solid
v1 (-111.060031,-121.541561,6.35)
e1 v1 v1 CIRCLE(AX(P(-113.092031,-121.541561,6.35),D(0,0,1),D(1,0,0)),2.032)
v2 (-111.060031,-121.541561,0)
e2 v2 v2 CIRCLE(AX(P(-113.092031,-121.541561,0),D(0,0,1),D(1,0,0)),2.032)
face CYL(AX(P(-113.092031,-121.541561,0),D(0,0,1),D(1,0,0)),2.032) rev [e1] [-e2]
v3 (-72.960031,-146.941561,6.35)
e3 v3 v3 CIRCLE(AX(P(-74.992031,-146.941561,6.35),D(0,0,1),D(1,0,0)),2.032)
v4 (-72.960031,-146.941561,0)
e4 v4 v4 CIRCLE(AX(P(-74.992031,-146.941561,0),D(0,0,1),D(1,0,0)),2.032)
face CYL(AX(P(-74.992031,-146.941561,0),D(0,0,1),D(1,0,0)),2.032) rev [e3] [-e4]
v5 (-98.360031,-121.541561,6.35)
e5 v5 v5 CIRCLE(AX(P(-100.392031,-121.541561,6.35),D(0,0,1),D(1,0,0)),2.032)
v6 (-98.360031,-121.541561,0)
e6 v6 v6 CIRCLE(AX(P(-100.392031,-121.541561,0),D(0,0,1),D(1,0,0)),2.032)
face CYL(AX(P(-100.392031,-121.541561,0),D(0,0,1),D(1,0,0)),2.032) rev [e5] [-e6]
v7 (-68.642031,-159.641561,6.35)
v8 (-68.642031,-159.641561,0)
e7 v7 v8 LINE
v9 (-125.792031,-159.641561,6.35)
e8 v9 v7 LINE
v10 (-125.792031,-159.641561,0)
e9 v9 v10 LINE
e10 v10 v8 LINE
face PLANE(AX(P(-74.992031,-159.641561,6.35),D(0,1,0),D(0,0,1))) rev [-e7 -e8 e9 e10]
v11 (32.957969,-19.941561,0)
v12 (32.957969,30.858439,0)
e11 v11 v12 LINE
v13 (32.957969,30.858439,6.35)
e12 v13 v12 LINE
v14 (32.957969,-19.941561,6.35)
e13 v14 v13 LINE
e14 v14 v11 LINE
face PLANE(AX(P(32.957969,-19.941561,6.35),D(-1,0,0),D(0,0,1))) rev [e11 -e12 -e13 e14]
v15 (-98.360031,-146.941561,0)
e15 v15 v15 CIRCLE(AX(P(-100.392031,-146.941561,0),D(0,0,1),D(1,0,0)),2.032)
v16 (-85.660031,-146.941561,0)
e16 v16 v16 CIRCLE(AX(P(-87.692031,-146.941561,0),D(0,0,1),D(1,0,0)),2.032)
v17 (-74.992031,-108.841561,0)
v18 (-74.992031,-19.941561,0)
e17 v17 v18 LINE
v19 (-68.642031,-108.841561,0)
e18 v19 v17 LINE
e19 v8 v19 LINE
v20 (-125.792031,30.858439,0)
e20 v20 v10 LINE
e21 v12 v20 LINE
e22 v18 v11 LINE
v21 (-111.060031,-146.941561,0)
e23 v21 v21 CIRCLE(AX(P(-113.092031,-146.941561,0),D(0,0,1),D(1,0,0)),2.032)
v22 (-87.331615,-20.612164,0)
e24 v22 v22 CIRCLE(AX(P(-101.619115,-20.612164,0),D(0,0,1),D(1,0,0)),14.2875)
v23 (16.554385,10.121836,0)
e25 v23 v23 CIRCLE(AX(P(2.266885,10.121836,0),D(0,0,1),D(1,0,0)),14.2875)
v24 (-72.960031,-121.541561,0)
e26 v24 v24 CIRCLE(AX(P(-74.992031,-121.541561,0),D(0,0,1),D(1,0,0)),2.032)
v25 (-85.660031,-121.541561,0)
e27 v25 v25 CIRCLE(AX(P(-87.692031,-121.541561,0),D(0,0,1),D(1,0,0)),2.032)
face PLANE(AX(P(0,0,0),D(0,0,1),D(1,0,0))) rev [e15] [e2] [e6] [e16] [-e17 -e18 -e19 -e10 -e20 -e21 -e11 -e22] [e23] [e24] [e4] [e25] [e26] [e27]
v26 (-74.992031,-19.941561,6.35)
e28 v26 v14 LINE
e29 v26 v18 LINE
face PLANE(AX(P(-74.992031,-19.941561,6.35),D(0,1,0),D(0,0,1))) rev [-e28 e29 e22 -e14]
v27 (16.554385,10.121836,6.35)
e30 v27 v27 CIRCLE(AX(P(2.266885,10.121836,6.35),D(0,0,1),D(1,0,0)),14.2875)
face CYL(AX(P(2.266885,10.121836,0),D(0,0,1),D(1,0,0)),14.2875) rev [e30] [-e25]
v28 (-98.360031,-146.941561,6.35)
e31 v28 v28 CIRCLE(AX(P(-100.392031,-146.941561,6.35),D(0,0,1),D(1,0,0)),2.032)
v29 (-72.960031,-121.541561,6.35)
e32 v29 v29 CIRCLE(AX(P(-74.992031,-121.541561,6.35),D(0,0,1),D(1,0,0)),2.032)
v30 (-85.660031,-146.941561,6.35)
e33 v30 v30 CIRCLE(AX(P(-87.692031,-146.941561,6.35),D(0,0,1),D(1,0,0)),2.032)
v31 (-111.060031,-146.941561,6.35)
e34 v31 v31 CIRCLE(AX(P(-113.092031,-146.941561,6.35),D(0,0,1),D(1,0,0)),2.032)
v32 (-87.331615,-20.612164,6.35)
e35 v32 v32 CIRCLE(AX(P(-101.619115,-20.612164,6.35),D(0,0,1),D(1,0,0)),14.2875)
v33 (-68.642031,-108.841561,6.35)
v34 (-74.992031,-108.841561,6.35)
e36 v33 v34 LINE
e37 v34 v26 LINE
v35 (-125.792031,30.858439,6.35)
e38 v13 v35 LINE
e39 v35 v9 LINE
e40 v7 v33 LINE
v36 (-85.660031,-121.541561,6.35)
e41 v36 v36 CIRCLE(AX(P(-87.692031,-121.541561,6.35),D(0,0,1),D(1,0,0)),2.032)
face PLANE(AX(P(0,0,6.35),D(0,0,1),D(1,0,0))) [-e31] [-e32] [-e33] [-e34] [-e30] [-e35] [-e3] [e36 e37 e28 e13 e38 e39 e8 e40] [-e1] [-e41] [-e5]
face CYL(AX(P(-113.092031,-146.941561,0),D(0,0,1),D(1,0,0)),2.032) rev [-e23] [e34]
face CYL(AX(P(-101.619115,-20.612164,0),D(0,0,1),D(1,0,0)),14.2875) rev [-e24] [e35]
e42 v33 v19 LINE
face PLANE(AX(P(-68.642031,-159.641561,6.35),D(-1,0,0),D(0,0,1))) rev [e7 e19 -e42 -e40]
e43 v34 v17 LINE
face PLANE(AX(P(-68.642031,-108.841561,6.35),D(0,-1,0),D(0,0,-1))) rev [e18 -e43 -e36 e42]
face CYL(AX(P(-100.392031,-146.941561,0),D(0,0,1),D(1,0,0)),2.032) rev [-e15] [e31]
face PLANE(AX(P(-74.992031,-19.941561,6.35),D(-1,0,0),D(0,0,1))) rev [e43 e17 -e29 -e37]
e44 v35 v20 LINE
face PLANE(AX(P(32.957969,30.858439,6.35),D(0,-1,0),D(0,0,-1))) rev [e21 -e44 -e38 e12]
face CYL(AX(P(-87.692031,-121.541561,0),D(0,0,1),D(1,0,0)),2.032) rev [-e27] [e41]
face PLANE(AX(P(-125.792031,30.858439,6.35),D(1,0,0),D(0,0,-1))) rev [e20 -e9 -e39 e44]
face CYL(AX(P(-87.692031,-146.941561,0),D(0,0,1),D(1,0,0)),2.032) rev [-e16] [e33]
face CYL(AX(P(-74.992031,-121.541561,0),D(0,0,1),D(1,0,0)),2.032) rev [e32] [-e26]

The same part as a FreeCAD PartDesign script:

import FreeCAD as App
import Part
import Sketcher
from FreeCAD import Vector
Q = App.Units.Quantity

doc = App.newDocument("Part")
params = doc.addObject("Spreadsheet::Sheet", "Params")
for row, (alias, value) in enumerate([
    ("sketch1_height", "2 in"),
    ("sketch1_height2", "3.5 in"),
    ("sketch1_width", "2.25 in"),
    ("pad1_length", "0.25 in"),
    ("sketch2_diameter", "0.16 in"),
    ("sketch2_diameter2", "1.125 in"),
    ("pocket1_length", "0.25 in"),
], start=1):
    params.set(f"A{row}", alias)
    params.set(f"B{row}", "=" + value)
    params.setAlias(f"B{row}", alias)

body = doc.addObject("PartDesign::Body", "Body")

# Sketch on XY plane
sketch1 = doc.addObject("Sketcher::SketchObject", "Sketch")
body.addObject(sketch1)
sketch1.AttachmentSupport = (doc.XY_Plane, [""])
sketch1.MapMode = "FlatFace"
sketch1.addGeometry(Part.LineSegment(Vector(-125.792031, -159.641561, 0), Vector(-68.642031, -159.641561, 0)), False)
sketch1.addGeometry(Part.LineSegment(Vector(-68.642031, -159.641561, 0), Vector(-68.642031, -108.841561, 0)), False)
sketch1.addGeometry(Part.LineSegment(Vector(-68.642031, -108.841561, 0), Vector(-74.992031, -108.841561, 0)), False)
sketch1.addGeometry(Part.LineSegment(Vector(-74.992031, -108.841561, 0), Vector(-74.992031, -19.941561, 0)), False)
sketch1.addGeometry(Part.LineSegment(Vector(-74.992031, -19.941561, 0), Vector(32.957969, -19.941561, 0)), False)
sketch1.addGeometry(Part.LineSegment(Vector(32.957969, -19.941561, 0), Vector(32.957969, 30.858439, 0)), False)
sketch1.addGeometry(Part.LineSegment(Vector(32.957969, 30.858439, 0), Vector(-125.792031, 30.858439, 0)), False)
sketch1.addGeometry(Part.LineSegment(Vector(-125.792031, 30.858439, 0), Vector(-125.792031, -159.641561, 0)), False)
sketch1.addConstraint(Sketcher.Constraint("Coincident", 0, 2, 1, 1))
sketch1.addConstraint(Sketcher.Constraint("Coincident", 1, 2, 2, 1))
sketch1.addConstraint(Sketcher.Constraint("Coincident", 2, 2, 3, 1))
sketch1.addConstraint(Sketcher.Constraint("Coincident", 3, 2, 4, 1))
sketch1.addConstraint(Sketcher.Constraint("Coincident", 4, 2, 5, 1))
sketch1.addConstraint(Sketcher.Constraint("Coincident", 5, 2, 6, 1))
sketch1.addConstraint(Sketcher.Constraint("Coincident", 6, 2, 7, 1))
sketch1.addConstraint(Sketcher.Constraint("Coincident", 7, 2, 0, 1))
sketch1.addConstraint(Sketcher.Constraint("Horizontal", 0))
sketch1.addConstraint(Sketcher.Constraint("Vertical", 1))
sketch1.addConstraint(Sketcher.Constraint("Horizontal", 2))
sketch1.addConstraint(Sketcher.Constraint("Vertical", 3))
sketch1.addConstraint(Sketcher.Constraint("Horizontal", 4))
sketch1.addConstraint(Sketcher.Constraint("Vertical", 5))
sketch1.addConstraint(Sketcher.Constraint("Horizontal", 6))
sketch1.addConstraint(Sketcher.Constraint("Vertical", 7))
sketch1.addConstraint(Sketcher.Constraint("Equal", 1, 5))
sketch1.addConstraint(Sketcher.Constraint("DistanceY", 1, 1, 1, 2, Q("2 in")))
sketch1.addConstraint(Sketcher.Constraint("DistanceY", 3, 1, 3, 2, Q("3.5 in")))
sketch1.addConstraint(Sketcher.Constraint("DistanceX", 1, 2, 4, 2, Q("4 in")))
sketch1.addConstraint(Sketcher.Constraint("DistanceX", 6, 2, 3, 2, Q("2 in")))
sketch1.addConstraint(Sketcher.Constraint("DistanceX", 0, 1, 0, 2, Q("2.25 in")))
sketch1.addConstraint(Sketcher.Constraint("DistanceX", 0, 2, -1, 1, Q("68.642031 mm")))
sketch1.addConstraint(Sketcher.Constraint("DistanceY", 0, 2, -1, 1, Q("159.641561 mm")))
sketch1.setExpression("Constraints[17]", "Params.sketch1_height")
sketch1.setExpression("Constraints[18]", "Params.sketch1_height2")
sketch1.setExpression("Constraints[21]", "Params.sketch1_width")
pad1 = doc.addObject("PartDesign::Pad", "Pad")
body.addObject(pad1)
pad1.Profile = sketch1
pad1.setExpression("Length", "Params.pad1_length")

# Sketch on XY plane
sketch2 = doc.addObject("Sketcher::SketchObject", "Sketch001")
body.addObject(sketch2)
sketch2.AttachmentSupport = (doc.XY_Plane, [""])
sketch2.MapMode = "FlatFace"
sketch2.AttachmentOffset = App.Placement(Vector(0, 0, 0.25 * 25.4), App.Rotation())
sketch2.addGeometry(Part.Circle(Vector(-101.619115, -20.612164, 0), Vector(0, 0, 1), 14.2875), False)
sketch2.addGeometry(Part.Circle(Vector(2.266885, 10.121836, 0), Vector(0, 0, 1), 14.2875), False)
sketch2.addGeometry(Part.Circle(Vector(-87.692031, -146.941561, 0), Vector(0, 0, 1), 2.032), False)
sketch2.addGeometry(Part.Circle(Vector(-113.092031, -146.941561, 0), Vector(0, 0, 1), 2.032), False)
sketch2.addGeometry(Part.Circle(Vector(-100.392031, -146.941561, 0), Vector(0, 0, 1), 2.032), False)
sketch2.addGeometry(Part.Circle(Vector(-74.992031, -146.941561, 0), Vector(0, 0, 1), 2.032), False)
sketch2.addGeometry(Part.Circle(Vector(-113.092031, -121.541561, 0), Vector(0, 0, 1), 2.032), False)
sketch2.addGeometry(Part.Circle(Vector(-87.692031, -121.541561, 0), Vector(0, 0, 1), 2.032), False)
sketch2.addGeometry(Part.Circle(Vector(-74.992031, -121.541561, 0), Vector(0, 0, 1), 2.032), False)
sketch2.addGeometry(Part.Circle(Vector(-100.392031, -121.541561, 0), Vector(0, 0, 1), 2.032), False)
sketch2.addConstraint(Sketcher.Constraint("Equal", 0, 1))
sketch2.addConstraint(Sketcher.Constraint("Equal", 2, 3))
sketch2.addConstraint(Sketcher.Constraint("Equal", 3, 4))
sketch2.addConstraint(Sketcher.Constraint("Equal", 4, 5))
sketch2.addConstraint(Sketcher.Constraint("Equal", 5, 6))
sketch2.addConstraint(Sketcher.Constraint("Equal", 6, 7))
sketch2.addConstraint(Sketcher.Constraint("Equal", 7, 8))
sketch2.addConstraint(Sketcher.Constraint("Equal", 8, 9))
sketch2.addConstraint(Sketcher.Constraint("Horizontal", 2, 3, 3, 3))
sketch2.addConstraint(Sketcher.Constraint("Horizontal", 3, 3, 4, 3))
sketch2.addConstraint(Sketcher.Constraint("Horizontal", 4, 3, 5, 3))
sketch2.addConstraint(Sketcher.Constraint("Horizontal", 6, 3, 7, 3))
sketch2.addConstraint(Sketcher.Constraint("Horizontal", 7, 3, 8, 3))
sketch2.addConstraint(Sketcher.Constraint("Horizontal", 8, 3, 9, 3))
sketch2.addConstraint(Sketcher.Constraint("Vertical", 3, 3, 6, 3))
sketch2.addConstraint(Sketcher.Constraint("Vertical", 2, 3, 7, 3))
sketch2.addConstraint(Sketcher.Constraint("Vertical", 5, 3, 8, 3))
sketch2.addConstraint(Sketcher.Constraint("Vertical", 4, 3, 9, 3))
sketch2.addConstraint(Sketcher.Constraint("Diameter", 2, Q("0.16 in")))
sketch2.addConstraint(Sketcher.Constraint("Diameter", 0, Q("1.125 in")))
sketch2.addConstraint(Sketcher.Constraint("DistanceX", 3, 3, 2, 3, Q("1 in")))
sketch2.addConstraint(Sketcher.Constraint("DistanceX", 4, 3, 5, 3, Q("1 in")))
sketch2.addConstraint(Sketcher.Constraint("DistanceY", 3, 3, 6, 3, Q("1 in")))
sketch2.addConstraint(Sketcher.Constraint("DistanceX", 3, 3, 4, 3, Q("0.5 in")))
sketch2.addConstraint(Sketcher.Constraint("DistanceX", 0, 3, 1, 3, Q("4.09 in")))
sketch2.addConstraint(Sketcher.Constraint("DistanceY", 0, 3, 1, 3, Q("1.21 in")))
sketch2.addConstraint(Sketcher.Constraint("DistanceX", 2, 3, -1, 1, Q("87.692031 mm")))
sketch2.addConstraint(Sketcher.Constraint("DistanceY", 2, 3, -1, 1, Q("146.941561 mm")))
sketch2.addConstraint(Sketcher.Constraint("DistanceX", 0, 3, -1, 1, Q("101.619115 mm")))
sketch2.addConstraint(Sketcher.Constraint("DistanceY", 0, 3, -1, 1, Q("20.612164 mm")))
sketch2.setExpression("Constraints[18]", "Params.sketch2_diameter")
sketch2.setExpression("Constraints[19]", "Params.sketch2_diameter2")
pocket1 = doc.addObject("PartDesign::Pocket", "Pocket")
body.addObject(pocket1)
pocket1.Profile = sketch2
pocket1.setExpression("Length", "Params.pocket1_length")

doc.recompute()
